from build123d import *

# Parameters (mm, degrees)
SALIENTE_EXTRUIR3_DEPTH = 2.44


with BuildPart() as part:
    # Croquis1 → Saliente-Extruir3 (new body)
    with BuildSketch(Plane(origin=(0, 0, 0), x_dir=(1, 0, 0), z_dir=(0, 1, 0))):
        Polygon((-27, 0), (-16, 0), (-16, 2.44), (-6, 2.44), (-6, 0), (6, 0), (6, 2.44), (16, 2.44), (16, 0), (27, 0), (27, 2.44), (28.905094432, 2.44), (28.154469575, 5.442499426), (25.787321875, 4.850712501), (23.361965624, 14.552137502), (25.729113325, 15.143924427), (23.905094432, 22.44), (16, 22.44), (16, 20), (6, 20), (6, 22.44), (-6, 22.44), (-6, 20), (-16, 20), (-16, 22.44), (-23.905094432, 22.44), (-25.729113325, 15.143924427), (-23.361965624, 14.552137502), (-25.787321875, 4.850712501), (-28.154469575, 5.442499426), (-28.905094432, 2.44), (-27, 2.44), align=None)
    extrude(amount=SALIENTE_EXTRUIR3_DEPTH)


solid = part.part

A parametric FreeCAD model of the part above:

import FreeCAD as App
import Part
import Sketcher

V = App.Vector
Q = App.Units.Quantity


def add_polygon(sketch, points):
    """Adds a closed chain of lines whose ends are joined by coincident constraints."""
    first, n = sketch.GeometryCount, len(points)
    for a, b in zip(points, points[1:] + points[:1]):
        sketch.addGeometry(Part.LineSegment(App.Vector(*a, 0), App.Vector(*b, 0)), False)
    for i in range(n):
        sketch.addConstraint(Sketcher.Constraint("Coincident", first + i, 2, first + (i + 1) % n, 1))

doc = App.newDocument("Part")
params = doc.addObject("Spreadsheet::Sheet", "Params")
for row, (alias, value) in enumerate([
    ("sketch1_width", "11 mm"),
    ("sketch1_width2", "10 mm"),
    ("sketch1_width3", "12 mm"),
    ("sketch1_length", "10 mm"),
    ("sketch1_height", "2.44 mm"),
    ("pad1_length", "2.44 mm"),
], start=1):
    params.set(f"A{row}", alias)
    params.set(f"B{row}", "=" + value)
    params.setAlias(f"B{row}", alias)

body = doc.addObject("PartDesign::Body", "Body")

# Sketch on XZ plane
sketch1 = body.newObject("Sketcher::SketchObject", "Sketch")
sketch1.AttachmentSupport = (doc.getObject("XZ_Plane"), [""])
sketch1.MapMode = "FlatFace"
add_polygon(sketch1, [(-27, 0), (-16, 0), (-16, -2.44), (-6, -2.44), (-6, 0), (6, 0), (6, -2.44), (16, -2.44), (16, 0), (27, 0), (27, -2.44), (28.905094, -2.44), (28.15447, -5.442499), (25.787322, -4.850713), (23.361966, -14.552138), (25.729113, -15.143924), (23.905094, -22.44), (16, -22.44), (16, -20), (6, -20), (6, -22.44), (-6, -22.44), (-6, -20), (-16, -20), (-16, -22.44), (-23.905094, -22.44), (-25.729113, -15.143924), (-23.361966, -14.552138), (-25.787322, -4.850713), (-28.15447, -5.442499), (-28.905094, -2.44), (-27, -2.44)])  # lines 0-31
sketch1.addConstraint(Sketcher.Constraint("Horizontal", 0))
sketch1.addConstraint(Sketcher.Constraint("Vertical", 1))
sketch1.addConstraint(Sketcher.Constraint("Horizontal", 2))
sketch1.addConstraint(Sketcher.Constraint("Vertical", 3))
sketch1.addConstraint(Sketcher.Constraint("Horizontal", 4))
sketch1.addConstraint(Sketcher.Constraint("Vertical", 5))
sketch1.addConstraint(Sketcher.Constraint("Horizontal", 6))
sketch1.addConstraint(Sketcher.Constraint("Vertical", 7))
sketch1.addConstraint(Sketcher.Constraint("Horizontal", 8))
sketch1.addConstraint(Sketcher.Constraint("Vertical", 9))
sketch1.addConstraint(Sketcher.Constraint("Horizontal", 10))
sketch1.addConstraint(Sketcher.Constraint("Horizontal", 16))
sketch1.addConstraint(Sketcher.Constraint("Vertical", 17))
sketch1.addConstraint(Sketcher.Constraint("Horizontal", 18))
sketch1.addConstraint(Sketcher.Constraint("Vertical", 19))
sketch1.addConstraint(Sketcher.Constraint("Horizontal", 20))
sketch1.addConstraint(Sketcher.Constraint("Vertical", 21))
sketch1.addConstraint(Sketcher.Constraint("Horizontal", 22))
sketch1.addConstraint(Sketcher.Constraint("Vertical", 23))
sketch1.addConstraint(Sketcher.Constraint("Horizontal", 24))
sketch1.addConstraint(Sketcher.Constraint("Horizontal", 30))
sketch1.addConstraint(Sketcher.Constraint("Vertical", 31))
sketch1.addConstraint(Sketcher.Constraint("Symmetric", 3, 2, 4, 2, -1, 1))
sketch1.addConstraint(Sketcher.Constraint("Symmetric", 0, 2, 7, 2, -1, 1))
sketch1.addConstraint(Sketcher.Constraint("Symmetric", 18, 2, 21, 2, -2))
sketch1.addConstraint(Sketcher.Constraint("Symmetric", 16, 2, 23, 2, -2))
sketch1.addConstraint(Sketcher.Constraint("Symmetric", 14, 2, 25, 2, -2))
sketch1.addConstraint(Sketcher.Constraint("Symmetric", 13, 2, 26, 2, -2))
sketch1.addConstraint(Sketcher.Constraint("Symmetric", 12, 2, 27, 2, -2))
sketch1.addConstraint(Sketcher.Constraint("Symmetric", 11, 2, 28, 2, -2))
sketch1.addConstraint(Sketcher.Constraint("Symmetric", 10, 2, 29, 2, -2))
sketch1.addConstraint(Sketcher.Constraint("Symmetric", 8, 2, 31, 2, -2))
sketch1.addConstraint(Sketcher.Constraint("Perpendicular", 11, 12))
sketch1.addConstraint(Sketcher.Constraint("Perpendicular", 12, 13))
sketch1.addConstraint(Sketcher.Constraint("Perpendicular", 13, 14))
sketch1.addConstraint(Sketcher.Constraint("Perpendicular", 14, 15))
sketch1.addConstraint(Sketcher.Constraint("Perpendicular", 25, 26))
sketch1.addConstraint(Sketcher.Constraint("Horizontal", 2, 2, 5, 2))
sketch1.addConstraint(Sketcher.Constraint("Horizontal", 6, 2, 9, 2))
sketch1.addConstraint(Sketcher.Constraint("Horizontal", 16, 2, 19, 2))
sketch1.addConstraint(Sketcher.Constraint("Vertical", 7, 2, 16, 2))
sketch1.addConstraint(Sketcher.Constraint("Vertical", 5, 2, 18, 2))
sketch1.addConstraint(Sketcher.Constraint("Equal", 9, 17))
sketch1.addConstraint(Sketcher.Constraint("Equal", 12, 14))
sketch1.addConstraint(Sketcher.Constraint("DistanceX", 0, 1, 0, 2, Q("11 mm")))
sketch1.addConstraint(Sketcher.Constraint("DistanceX", 2, 1, 2, 2, Q("10 mm")))
sketch1.addConstraint(Sketcher.Constraint("DistanceX", 4, 1, 4, 2, Q("12 mm")))
sketch1.addConstraint(Sketcher.Constraint("Distance", 13, Q("10 mm")))
sketch1.addConstraint(Sketcher.Constraint("DistanceY", 17, 2, -1, 1, Q("20 mm")))
sketch1.addConstraint(Sketcher.Constraint("DistanceY", 1, 2, 1, 1, Q("2.44 mm")))
sketch1.addConstraint(Sketcher.Constraint("Distance", 12, Q("2.44 mm")))
sketch1.addConstraint(Sketcher.Constraint("DistanceY", 11, 2, -1, 1, Q("5.442499 mm")))
sketch1.addConstraint(Sketcher.Constraint("DistanceX", 10, 1, 10, 2, Q("1.905094 mm")))
sketch1.addConstraint(Sketcher.Constraint("DistanceX", 16, 2, 16, 1, Q("7.905094 mm")))
sketch1.setExpression("Constraints[76]", "Params.sketch1_width")
sketch1.setExpression("Constraints[77]", "Params.sketch1_width2")
sketch1.setExpression("Constraints[78]", "Params.sketch1_width3")
sketch1.setExpression("Constraints[79]", "Params.sketch1_length")
sketch1.setExpression("Constraints[81]", "Params.sketch1_height")
pad1 = body.newObject("PartDesign::Pad", "Pad")
pad1.Profile = sketch1
pad1.setExpression("Length", "Params.pad1_length")
pad1.Reversed = True

doc.recompute()
